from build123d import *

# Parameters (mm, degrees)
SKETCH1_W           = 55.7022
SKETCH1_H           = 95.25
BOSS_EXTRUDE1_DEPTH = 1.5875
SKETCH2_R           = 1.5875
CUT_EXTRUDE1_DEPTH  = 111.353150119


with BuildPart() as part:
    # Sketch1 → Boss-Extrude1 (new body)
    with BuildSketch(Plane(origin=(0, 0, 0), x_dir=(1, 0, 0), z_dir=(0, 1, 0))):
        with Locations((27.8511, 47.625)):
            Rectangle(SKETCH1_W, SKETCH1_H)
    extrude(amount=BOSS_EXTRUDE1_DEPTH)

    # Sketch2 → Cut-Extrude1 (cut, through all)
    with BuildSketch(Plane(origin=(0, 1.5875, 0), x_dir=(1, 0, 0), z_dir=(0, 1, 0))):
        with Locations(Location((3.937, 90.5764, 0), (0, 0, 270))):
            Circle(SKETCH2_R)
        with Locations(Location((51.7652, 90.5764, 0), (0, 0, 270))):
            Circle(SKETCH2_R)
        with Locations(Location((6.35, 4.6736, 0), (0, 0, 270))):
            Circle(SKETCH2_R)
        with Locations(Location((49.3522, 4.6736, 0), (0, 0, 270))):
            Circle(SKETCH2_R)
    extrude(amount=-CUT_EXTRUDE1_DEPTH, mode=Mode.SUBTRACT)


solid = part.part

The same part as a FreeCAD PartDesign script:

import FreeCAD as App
import Part
import Sketcher
from FreeCAD import Vector
Q = App.Units.Quantity


def add_polygon(sketch, points):
    """Adds a closed chain of lines whose ends are joined by coincident constraints."""
    first, n = sketch.GeometryCount, len(points)
    for a, b in zip(points, points[1:] + points[:1]):
        sketch.addGeometry(Part.LineSegment(App.Vector(*a, 0), App.Vector(*b, 0)), False)
    for i in range(n):
        sketch.addConstraint(Sketcher.Constraint("Coincident", first + i, 2, first + (i + 1) % n, 1))

doc = App.newDocument("Part")
params = doc.addObject("Spreadsheet::Sheet", "Params")
for row, (alias, value) in enumerate([
    ("sketch1_height", "3.75 in"),
    ("sketch1_width", "2.193 in"),
    ("pad1_length", "0.0625 in"),
    ("sketch2_diameter", "0.125 in"),
], start=1):
    params.set(f"A{row}", alias)
    params.set(f"B{row}", "=" + value)
    params.setAlias(f"B{row}", alias)

body = doc.addObject("PartDesign::Body", "Body")

# Sketch on XZ plane
sketch1 = doc.addObject("Sketcher::SketchObject", "Sketch")
body.addObject(sketch1)
sketch1.AttachmentSupport = (doc.XZ_Plane, [""])
sketch1.MapMode = "FlatFace"
add_polygon(sketch1, [(0, -95.25), (0, 0), (55.7022, 0), (55.7022, -95.25)])  # lines 0-3
sketch1.addConstraint(Sketcher.Constraint("Vertical", 0))
sketch1.addConstraint(Sketcher.Constraint("Horizontal", 1))
sketch1.addConstraint(Sketcher.Constraint("Vertical", 2))
sketch1.addConstraint(Sketcher.Constraint("Horizontal", 3))
sketch1.addConstraint(Sketcher.Constraint("Coincident", 0, 2, -1, 1))
sketch1.addConstraint(Sketcher.Constraint("DistanceY", 0, 1, 0, 2, Q("3.75 in")))
sketch1.addConstraint(Sketcher.Constraint("DistanceX", 1, 1, 1, 2, Q("2.193 in")))
sketch1.setExpression("Constraints[9]", "Params.sketch1_height")
sketch1.setExpression("Constraints[10]", "Params.sketch1_width")
pad1 = doc.addObject("PartDesign::Pad", "Pad")
body.addObject(pad1)
pad1.Profile = sketch1
pad1.setExpression("Length", "Params.pad1_length")
pad1.Reversed = True

# Sketch on XZ plane
sketch2 = doc.addObject("Sketcher::SketchObject", "Sketch001")
body.addObject(sketch2)
sketch2.AttachmentSupport = (doc.XZ_Plane, [""])
sketch2.MapMode = "FlatFace"
sketch2.AttachmentOffset = App.Placement(Vector(0, 0, -0.0625 * 25.4), App.Rotation())
sketch2.addGeometry(Part.Circle(Vector(3.937, -90.5764, 0), Vector(0, 0, 1), 1.5875), False)
sketch2.addGeometry(Part.Circle(Vector(51.7652, -90.5764, 0), Vector(0, 0, 1), 1.5875), False)
sketch2.addGeometry(Part.Circle(Vector(6.35, -4.6736, 0), Vector(0, 0, 1), 1.5875), False)
sketch2.addGeometry(Part.Circle(Vector(49.3522, -4.6736, 0), Vector(0, 0, 1), 1.5875), False)
sketch2.addConstraint(Sketcher.Constraint("Equal", 0, 1))
sketch2.addConstraint(Sketcher.Constraint("Equal", 1, 2))
sketch2.addConstraint(Sketcher.Constraint("Equal", 2, 3))
sketch2.addConstraint(Sketcher.Constraint("Horizontal", 0, 3, 1, 3))
sketch2.addConstraint(Sketcher.Constraint("Horizontal", 2, 3, 3, 3))
sketch2.addConstraint(Sketcher.Constraint("Diameter", 0, Q("0.125 in")))
sketch2.addConstraint(Sketcher.Constraint("DistanceX", -1, 1, 2, 3, Q("0.25 in")))
sketch2.addConstraint(Sketcher.Constraint("DistanceX", -1, 1, 0, 3, Q("0.155 in")))
sketch2.addConstraint(Sketcher.Constraint("DistanceY", 0, 3, -1, 1, Q("3.566 in")))
sketch2.addConstraint(Sketcher.Constraint("DistanceX", -1, 1, 1, 3, Q("2.038 in")))
sketch2.addConstraint(Sketcher.Constraint("DistanceY", 2, 3, -1, 1, Q("0.184 in")))
sketch2.addConstraint(Sketcher.Constraint("DistanceX", -1, 1, 3, 3, Q("1.943 in")))
sketch2.setExpression("Constraints[5]", "Params.sketch2_diameter")
pocket1 = doc.addObject("PartDesign::Pocket", "Pocket")
body.addObject(pocket1)
pocket1.Profile = sketch2
pocket1.Type = "ThroughAll"
pocket1.Reversed = True

doc.recompute()
